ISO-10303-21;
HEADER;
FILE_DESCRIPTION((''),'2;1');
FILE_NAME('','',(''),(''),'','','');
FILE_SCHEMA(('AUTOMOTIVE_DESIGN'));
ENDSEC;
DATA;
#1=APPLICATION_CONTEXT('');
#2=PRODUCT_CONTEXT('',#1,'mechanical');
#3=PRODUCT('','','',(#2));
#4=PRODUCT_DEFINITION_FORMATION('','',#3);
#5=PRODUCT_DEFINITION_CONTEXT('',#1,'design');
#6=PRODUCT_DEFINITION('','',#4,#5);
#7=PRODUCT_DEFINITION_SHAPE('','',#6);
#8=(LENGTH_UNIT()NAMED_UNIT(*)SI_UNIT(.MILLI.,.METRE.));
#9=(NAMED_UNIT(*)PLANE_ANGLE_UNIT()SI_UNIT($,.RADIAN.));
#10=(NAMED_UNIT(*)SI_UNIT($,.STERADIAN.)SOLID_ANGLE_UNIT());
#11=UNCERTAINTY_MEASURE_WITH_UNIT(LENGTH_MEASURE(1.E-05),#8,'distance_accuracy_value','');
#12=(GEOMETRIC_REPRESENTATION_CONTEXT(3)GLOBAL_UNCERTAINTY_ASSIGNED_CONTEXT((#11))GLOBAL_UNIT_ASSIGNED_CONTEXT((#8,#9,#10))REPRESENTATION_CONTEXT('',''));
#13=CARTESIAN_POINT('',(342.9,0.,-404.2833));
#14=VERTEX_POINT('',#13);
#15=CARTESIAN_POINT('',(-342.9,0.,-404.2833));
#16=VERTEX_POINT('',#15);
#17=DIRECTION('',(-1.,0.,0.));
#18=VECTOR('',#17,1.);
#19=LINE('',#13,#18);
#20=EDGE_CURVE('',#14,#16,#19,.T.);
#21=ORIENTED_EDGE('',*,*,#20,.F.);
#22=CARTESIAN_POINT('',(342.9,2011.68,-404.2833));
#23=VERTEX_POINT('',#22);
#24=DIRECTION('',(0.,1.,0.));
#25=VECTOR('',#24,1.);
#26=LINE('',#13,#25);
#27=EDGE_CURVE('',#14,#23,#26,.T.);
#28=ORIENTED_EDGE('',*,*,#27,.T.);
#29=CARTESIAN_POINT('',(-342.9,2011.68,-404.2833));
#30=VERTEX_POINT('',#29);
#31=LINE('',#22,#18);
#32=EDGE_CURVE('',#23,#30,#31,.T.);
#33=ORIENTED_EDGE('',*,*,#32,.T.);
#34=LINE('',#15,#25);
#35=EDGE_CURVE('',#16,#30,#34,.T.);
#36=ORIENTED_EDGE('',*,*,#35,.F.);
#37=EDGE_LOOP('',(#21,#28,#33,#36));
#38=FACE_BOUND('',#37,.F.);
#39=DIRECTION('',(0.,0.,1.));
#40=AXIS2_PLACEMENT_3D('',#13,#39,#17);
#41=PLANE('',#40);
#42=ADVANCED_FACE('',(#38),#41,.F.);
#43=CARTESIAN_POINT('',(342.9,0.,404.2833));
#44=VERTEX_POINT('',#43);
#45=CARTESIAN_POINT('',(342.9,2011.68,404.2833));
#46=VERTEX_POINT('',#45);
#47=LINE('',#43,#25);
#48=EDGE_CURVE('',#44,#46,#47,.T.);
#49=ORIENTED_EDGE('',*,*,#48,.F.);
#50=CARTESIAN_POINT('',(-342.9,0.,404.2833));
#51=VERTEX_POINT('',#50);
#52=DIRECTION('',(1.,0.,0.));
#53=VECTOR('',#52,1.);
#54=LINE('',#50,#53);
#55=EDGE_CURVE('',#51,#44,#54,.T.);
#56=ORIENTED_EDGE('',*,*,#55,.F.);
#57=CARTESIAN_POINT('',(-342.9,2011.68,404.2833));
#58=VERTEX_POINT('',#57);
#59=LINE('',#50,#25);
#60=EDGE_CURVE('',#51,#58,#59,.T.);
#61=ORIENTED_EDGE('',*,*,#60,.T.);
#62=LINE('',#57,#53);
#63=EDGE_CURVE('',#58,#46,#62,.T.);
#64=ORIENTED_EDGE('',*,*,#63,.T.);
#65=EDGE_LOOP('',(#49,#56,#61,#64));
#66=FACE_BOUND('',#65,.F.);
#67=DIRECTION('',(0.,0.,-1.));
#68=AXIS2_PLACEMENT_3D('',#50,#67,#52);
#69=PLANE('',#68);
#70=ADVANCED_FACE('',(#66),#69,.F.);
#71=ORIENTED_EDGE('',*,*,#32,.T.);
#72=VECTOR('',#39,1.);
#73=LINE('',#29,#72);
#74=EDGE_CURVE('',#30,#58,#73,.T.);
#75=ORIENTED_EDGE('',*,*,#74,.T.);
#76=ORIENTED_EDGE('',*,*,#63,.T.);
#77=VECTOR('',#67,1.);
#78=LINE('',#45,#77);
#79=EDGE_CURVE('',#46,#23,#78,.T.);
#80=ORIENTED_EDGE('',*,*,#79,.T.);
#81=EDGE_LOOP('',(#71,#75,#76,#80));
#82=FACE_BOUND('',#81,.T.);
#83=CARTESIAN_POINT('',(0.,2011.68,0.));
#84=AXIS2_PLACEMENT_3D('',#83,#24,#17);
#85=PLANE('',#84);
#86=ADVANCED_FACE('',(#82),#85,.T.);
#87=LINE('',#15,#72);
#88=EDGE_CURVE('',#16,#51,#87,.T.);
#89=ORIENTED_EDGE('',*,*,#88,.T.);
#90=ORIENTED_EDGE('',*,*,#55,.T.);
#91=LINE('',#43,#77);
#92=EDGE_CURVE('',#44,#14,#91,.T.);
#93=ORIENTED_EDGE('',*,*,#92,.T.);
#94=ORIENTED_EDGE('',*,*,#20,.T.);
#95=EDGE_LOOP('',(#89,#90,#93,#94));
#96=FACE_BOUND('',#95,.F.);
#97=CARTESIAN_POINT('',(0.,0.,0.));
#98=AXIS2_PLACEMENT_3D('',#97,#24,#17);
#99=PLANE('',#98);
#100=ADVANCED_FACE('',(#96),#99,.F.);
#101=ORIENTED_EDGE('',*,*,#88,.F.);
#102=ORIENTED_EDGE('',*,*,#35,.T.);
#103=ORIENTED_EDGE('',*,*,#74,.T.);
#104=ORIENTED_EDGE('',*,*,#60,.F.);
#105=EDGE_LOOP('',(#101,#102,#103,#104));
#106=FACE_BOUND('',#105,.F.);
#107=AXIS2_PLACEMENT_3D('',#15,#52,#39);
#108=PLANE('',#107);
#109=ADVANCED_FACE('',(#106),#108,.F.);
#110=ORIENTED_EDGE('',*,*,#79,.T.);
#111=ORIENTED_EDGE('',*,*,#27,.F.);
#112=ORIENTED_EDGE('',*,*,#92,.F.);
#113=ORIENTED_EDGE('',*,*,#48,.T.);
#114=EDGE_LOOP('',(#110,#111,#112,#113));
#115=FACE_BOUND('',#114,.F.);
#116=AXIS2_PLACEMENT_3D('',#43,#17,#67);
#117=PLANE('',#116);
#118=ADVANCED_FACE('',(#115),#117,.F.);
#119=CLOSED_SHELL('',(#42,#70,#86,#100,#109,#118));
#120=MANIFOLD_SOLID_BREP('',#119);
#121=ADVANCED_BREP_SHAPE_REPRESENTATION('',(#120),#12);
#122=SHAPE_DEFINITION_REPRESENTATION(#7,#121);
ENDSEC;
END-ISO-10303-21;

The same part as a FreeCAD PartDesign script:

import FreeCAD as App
import Part
import Sketcher

V = App.Vector
Q = App.Units.Quantity


def add_polygon(sketch, points):
    """Adds a closed chain of lines whose ends are joined by coincident constraints."""
    first, n = sketch.GeometryCount, len(points)
    for a, b in zip(points, points[1:] + points[:1]):
        sketch.addGeometry(Part.LineSegment(App.Vector(*a, 0), App.Vector(*b, 0)), False)
    for i in range(n):
        sketch.addConstraint(Sketcher.Constraint("Coincident", first + i, 2, first + (i + 1) % n, 1))

doc = App.newDocument("Part")
body = doc.addObject("PartDesign::Body", "Body")

sketch1 = body.newObject("Sketcher::SketchObject", "Sketch")
sketch1.AttachmentSupport = (doc.getObject("XZ_Plane"), [""])
sketch1.MapMode = "FlatFace"
add_polygon(sketch1, [(-343, -404), (-343, 404), (343, 404), (343, -404)])
sketch1.addConstraint([
    Sketcher.Constraint("Vertical", 0),
    Sketcher.Constraint("Horizontal", 1),
    Sketcher.Constraint("Vertical", 2),
    Sketcher.Constraint("Horizontal", 3),
    Sketcher.Constraint("Symmetric", 0, 2, 2, 2, -1, 1),
    Sketcher.Constraint("DistanceX", 1, 1, 1, 2, Q("27 in")),
    Sketcher.Constraint("DistanceY", 0, 1, 0, 2, 808.5666),
])
pad1 = body.newObject("PartDesign::Pad", "Pad")
pad1.Profile = sketch1
pad1.Length = Q("79.2 in")
pad1.Reversed = True

doc.recompute()
